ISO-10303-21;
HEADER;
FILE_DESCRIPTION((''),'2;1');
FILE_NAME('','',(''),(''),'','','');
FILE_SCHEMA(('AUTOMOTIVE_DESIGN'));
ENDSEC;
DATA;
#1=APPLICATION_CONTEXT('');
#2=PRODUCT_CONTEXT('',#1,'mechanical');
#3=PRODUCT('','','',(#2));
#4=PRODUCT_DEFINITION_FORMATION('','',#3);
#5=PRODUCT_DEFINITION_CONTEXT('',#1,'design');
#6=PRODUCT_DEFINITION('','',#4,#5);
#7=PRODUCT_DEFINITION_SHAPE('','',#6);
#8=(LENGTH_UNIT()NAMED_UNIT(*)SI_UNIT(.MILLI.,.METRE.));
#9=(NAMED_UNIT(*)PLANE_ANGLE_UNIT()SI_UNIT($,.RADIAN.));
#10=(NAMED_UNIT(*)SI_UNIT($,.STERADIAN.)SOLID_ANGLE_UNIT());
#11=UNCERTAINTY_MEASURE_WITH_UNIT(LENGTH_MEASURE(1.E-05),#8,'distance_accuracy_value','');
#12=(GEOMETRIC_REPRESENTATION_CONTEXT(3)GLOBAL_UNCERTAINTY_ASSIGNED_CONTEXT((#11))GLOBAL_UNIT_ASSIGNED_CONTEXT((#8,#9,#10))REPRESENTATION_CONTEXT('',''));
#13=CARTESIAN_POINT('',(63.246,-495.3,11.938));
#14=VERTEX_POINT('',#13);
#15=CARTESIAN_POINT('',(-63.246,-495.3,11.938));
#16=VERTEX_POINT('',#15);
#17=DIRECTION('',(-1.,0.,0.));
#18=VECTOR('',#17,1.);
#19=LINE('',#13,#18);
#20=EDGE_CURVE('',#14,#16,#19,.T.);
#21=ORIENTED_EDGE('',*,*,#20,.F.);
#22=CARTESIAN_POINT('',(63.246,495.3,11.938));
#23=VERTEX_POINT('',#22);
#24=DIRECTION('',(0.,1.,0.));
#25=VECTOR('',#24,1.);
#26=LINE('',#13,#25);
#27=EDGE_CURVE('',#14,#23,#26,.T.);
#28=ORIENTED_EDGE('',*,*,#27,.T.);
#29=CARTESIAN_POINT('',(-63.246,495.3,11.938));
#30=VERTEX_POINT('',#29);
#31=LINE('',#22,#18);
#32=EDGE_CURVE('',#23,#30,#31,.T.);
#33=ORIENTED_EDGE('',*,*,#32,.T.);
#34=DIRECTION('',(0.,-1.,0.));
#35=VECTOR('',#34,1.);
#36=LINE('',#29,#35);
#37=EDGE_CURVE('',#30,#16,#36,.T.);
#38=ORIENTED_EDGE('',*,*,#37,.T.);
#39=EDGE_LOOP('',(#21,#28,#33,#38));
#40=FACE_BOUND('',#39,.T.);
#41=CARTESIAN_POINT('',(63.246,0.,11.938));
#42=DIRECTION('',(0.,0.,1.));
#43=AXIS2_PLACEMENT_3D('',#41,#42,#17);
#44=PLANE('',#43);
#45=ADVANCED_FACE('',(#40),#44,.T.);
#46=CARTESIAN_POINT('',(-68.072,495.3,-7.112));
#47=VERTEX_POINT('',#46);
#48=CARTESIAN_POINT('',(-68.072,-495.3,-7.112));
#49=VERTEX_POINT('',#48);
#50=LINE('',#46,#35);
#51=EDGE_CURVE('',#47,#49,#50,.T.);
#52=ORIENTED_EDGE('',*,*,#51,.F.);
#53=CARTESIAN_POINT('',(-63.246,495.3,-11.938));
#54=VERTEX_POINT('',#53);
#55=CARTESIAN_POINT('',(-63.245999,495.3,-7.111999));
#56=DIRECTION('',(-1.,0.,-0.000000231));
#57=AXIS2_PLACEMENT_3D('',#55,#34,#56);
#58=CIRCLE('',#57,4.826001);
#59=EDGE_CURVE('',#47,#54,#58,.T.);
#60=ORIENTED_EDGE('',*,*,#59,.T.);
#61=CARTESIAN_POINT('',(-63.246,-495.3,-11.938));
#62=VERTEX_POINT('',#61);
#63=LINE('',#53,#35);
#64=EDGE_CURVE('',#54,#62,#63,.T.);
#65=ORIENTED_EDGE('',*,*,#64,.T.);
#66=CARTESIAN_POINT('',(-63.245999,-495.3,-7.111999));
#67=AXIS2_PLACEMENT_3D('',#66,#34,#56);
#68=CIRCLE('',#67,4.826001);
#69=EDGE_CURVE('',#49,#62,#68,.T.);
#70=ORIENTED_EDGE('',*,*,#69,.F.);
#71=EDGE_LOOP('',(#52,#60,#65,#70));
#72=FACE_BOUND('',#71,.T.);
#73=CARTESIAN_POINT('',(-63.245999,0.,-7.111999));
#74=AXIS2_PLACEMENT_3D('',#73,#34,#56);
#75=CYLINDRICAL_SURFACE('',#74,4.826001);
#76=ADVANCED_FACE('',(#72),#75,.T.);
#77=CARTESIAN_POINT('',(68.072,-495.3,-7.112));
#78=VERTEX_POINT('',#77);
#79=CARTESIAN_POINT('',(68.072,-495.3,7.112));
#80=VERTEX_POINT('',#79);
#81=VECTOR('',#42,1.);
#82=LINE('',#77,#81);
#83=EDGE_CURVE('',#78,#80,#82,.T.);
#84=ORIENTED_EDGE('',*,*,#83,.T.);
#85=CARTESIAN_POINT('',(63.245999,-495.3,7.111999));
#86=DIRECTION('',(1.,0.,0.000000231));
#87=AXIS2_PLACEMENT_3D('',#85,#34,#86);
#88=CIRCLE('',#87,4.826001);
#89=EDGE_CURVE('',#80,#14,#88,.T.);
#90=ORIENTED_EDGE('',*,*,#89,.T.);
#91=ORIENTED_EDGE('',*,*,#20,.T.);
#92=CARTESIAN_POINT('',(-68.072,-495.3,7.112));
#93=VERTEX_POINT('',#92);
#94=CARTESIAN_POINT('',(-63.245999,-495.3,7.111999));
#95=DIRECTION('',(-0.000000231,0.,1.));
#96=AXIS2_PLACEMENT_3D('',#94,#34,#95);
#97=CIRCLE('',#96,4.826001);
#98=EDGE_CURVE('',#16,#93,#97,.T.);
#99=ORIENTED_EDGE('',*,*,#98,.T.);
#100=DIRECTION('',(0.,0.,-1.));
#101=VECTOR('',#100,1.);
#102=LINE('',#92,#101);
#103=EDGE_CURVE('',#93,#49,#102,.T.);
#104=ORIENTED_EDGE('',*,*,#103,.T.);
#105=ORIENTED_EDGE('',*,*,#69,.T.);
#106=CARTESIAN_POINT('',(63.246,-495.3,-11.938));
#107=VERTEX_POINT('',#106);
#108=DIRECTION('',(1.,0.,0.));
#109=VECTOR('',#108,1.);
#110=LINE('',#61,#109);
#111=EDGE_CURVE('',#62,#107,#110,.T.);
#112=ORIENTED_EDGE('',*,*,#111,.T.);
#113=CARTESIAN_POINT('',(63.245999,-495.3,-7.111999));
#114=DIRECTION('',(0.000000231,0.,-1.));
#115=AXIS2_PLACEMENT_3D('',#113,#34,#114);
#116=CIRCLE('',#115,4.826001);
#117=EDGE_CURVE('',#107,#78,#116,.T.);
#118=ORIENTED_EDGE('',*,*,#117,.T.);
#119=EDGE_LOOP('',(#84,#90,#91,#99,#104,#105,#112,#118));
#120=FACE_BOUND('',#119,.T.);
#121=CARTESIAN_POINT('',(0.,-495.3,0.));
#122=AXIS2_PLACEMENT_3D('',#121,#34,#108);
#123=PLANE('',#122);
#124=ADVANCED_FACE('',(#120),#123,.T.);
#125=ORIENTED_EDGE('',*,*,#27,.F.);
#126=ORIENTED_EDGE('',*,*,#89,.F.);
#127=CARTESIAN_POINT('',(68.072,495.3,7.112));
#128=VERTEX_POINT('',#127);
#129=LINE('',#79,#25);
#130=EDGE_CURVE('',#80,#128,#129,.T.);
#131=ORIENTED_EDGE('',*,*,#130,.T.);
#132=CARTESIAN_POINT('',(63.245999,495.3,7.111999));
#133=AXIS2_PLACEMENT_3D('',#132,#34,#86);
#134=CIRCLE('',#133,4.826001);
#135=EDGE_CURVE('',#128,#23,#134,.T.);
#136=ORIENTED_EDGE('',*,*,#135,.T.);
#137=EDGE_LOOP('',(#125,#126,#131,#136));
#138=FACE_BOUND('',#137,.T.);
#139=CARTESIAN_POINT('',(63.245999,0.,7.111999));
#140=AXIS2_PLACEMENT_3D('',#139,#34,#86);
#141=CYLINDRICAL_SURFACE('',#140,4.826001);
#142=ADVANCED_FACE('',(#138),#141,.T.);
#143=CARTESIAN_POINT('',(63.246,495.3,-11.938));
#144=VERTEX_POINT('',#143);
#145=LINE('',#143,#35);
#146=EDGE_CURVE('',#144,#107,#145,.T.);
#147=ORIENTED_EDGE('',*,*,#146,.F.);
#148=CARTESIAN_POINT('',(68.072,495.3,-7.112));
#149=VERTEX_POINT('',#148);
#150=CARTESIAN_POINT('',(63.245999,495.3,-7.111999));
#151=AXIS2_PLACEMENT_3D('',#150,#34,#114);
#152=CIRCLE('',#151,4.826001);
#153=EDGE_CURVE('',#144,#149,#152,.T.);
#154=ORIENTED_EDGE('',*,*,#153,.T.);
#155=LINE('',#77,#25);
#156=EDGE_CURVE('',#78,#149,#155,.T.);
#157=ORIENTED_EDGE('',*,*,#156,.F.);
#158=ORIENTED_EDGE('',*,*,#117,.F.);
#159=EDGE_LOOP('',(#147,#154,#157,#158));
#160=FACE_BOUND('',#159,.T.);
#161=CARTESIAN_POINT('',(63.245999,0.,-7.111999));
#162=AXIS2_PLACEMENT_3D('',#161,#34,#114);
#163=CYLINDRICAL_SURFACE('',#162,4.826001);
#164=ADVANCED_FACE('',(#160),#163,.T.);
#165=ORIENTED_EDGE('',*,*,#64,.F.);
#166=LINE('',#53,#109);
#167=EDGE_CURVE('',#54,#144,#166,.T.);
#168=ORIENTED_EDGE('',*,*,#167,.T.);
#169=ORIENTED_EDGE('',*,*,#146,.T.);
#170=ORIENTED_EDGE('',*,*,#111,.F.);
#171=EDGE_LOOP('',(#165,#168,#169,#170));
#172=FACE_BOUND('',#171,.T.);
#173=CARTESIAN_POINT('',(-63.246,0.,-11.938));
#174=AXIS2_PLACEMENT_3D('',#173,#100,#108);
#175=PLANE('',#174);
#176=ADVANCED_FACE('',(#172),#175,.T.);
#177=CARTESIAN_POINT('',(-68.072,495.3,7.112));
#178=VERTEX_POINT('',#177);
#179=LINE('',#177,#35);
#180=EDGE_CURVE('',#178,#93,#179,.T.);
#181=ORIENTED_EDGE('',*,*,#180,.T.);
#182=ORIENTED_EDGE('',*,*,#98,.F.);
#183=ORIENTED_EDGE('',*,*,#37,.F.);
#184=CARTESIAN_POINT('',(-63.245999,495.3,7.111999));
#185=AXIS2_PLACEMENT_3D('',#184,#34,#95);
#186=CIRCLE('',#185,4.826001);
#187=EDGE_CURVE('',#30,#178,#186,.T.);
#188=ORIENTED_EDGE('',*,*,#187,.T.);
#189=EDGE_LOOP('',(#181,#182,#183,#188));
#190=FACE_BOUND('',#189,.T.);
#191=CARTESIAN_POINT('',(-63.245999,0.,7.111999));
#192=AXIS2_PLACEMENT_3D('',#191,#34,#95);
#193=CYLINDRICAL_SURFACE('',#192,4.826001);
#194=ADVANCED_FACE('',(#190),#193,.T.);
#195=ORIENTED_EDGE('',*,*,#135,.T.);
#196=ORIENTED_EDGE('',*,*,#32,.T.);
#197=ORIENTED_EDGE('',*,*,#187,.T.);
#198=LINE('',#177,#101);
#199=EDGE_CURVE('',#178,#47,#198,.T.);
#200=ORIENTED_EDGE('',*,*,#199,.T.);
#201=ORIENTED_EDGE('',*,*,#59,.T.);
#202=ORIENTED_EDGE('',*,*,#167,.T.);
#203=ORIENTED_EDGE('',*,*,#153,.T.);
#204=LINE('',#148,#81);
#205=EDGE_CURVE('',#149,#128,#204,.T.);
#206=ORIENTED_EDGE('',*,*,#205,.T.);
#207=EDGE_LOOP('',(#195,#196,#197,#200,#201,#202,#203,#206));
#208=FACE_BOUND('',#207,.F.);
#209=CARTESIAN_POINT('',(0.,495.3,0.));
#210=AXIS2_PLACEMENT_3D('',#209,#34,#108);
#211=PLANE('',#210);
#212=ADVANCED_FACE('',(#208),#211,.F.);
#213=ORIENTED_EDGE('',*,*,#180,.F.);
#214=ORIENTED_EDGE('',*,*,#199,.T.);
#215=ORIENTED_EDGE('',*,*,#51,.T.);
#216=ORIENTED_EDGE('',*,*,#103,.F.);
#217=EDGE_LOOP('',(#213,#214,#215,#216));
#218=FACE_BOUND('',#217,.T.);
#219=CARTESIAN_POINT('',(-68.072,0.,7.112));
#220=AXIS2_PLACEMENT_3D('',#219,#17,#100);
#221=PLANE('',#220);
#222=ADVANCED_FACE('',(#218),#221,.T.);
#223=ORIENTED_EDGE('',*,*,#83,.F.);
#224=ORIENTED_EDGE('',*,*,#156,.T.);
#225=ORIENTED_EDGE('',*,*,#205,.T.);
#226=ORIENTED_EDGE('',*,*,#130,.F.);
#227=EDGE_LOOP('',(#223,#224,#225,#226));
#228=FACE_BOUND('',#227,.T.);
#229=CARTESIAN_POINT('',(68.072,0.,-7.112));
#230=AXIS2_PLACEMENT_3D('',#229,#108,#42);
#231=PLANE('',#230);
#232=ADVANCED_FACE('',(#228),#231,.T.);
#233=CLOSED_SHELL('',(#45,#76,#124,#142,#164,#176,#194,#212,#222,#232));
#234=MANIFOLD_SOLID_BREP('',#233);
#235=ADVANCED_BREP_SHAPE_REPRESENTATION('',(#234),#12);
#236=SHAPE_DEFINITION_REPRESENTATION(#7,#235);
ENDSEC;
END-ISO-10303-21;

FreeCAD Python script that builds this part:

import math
import FreeCAD as App
import Part
import Sketcher

V = App.Vector
Q = App.Units.Quantity

doc = App.newDocument("Part")
body = doc.addObject("PartDesign::Body", "Body")

# Sketch on XZ plane
sketch1 = body.newObject("Sketcher::SketchObject", "Sketch")
sketch1.AttachmentSupport = (doc.getObject("XZ_Plane"), [""])
sketch1.MapMode = "FlatFace"
sketch1.addGeometry(Part.LineSegment(V(63.2, 11.9, 0), V(-63.2, 11.9, 0)), False)
sketch1.addGeometry(Part.ArcOfCircle(Part.Circle(V(-63.2, 7.1, 0), V(0, 0, 1), 4.8), math.radians(90), math.radians(180)), False)
sketch1.addGeometry(Part.LineSegment(V(-68.1, 7.1, 0), V(-68.1, -7.1, 0)), False)
sketch1.addGeometry(Part.ArcOfCircle(Part.Circle(V(-63.2, -7.1, 0), V(0, 0, 1), 4.8), math.radians(-180), math.radians(-90)), False)
sketch1.addGeometry(Part.LineSegment(V(-63.2, -11.9, 0), V(63.2, -11.9, 0)), False)
sketch1.addGeometry(Part.ArcOfCircle(Part.Circle(V(63.2, -7.1, 0), V(0, 0, 1), 4.8), math.radians(-90), math.radians(0)), False)
sketch1.addGeometry(Part.LineSegment(V(68.1, -7.1, 0), V(68.1, 7.1, 0)), False)
sketch1.addGeometry(Part.ArcOfCircle(Part.Circle(V(63.2, 7.1, 0), V(0, 0, 1), 4.8), math.radians(0), math.radians(90)), False)
sketch1.addConstraint(Sketcher.Constraint("Tangent", 0, 2, 1, 1))
sketch1.addConstraint(Sketcher.Constraint("Tangent", 1, 2, 2, 1))
sketch1.addConstraint(Sketcher.Constraint("Tangent", 2, 2, 3, 1))
sketch1.addConstraint(Sketcher.Constraint("Tangent", 3, 2, 4, 1))
sketch1.addConstraint(Sketcher.Constraint("Tangent", 4, 2, 5, 1))
sketch1.addConstraint(Sketcher.Constraint("Tangent", 5, 2, 6, 1))
sketch1.addConstraint(Sketcher.Constraint("Tangent", 6, 2, 7, 1))
sketch1.addConstraint(Sketcher.Constraint("Tangent", 7, 2, 0, 1))
sketch1.addConstraint(Sketcher.Constraint("Horizontal", 0))
sketch1.addConstraint(Sketcher.Constraint("Vertical", 2))
sketch1.addConstraint(Sketcher.Constraint("Horizontal", 4))
sketch1.addConstraint(Sketcher.Constraint("Vertical", 6))
sketch1.addConstraint(Sketcher.Constraint("Equal", 1, 3))
sketch1.addConstraint(Sketcher.Constraint("Equal", 3, 5))
sketch1.addConstraint(Sketcher.Constraint("Equal", 5, 7))
sketch1.addConstraint(Sketcher.Constraint("Symmetric", 1, 3, 5, 3, -1, 1))
sketch1.addConstraint(Sketcher.Constraint("Radius", 1, Q("0.19 in")))
sketch1.addConstraint(Sketcher.Constraint("DistanceX", 0, 2, 0, 1, Q("4.98 in")))
sketch1.addConstraint(Sketcher.Constraint("DistanceY", 2, 2, 2, 1, Q("0.56 in")))
pad1 = body.newObject("PartDesign::Pad", "Pad")
pad1.Profile = sketch1
pad1.Length = Q("39 in")
pad1.Midplane = True

doc.recompute()
